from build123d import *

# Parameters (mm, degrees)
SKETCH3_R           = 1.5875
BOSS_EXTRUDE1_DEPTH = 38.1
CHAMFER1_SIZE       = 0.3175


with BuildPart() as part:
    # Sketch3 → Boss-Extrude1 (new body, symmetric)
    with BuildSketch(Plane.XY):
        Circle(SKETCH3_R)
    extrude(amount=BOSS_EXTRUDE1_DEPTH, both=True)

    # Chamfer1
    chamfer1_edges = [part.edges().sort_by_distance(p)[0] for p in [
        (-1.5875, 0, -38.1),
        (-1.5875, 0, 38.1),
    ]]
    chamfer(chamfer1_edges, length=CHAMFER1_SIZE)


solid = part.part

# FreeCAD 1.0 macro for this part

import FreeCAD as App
import Part
import Sketcher
Q = App.Units.Quantity


def edges_at(feature, points):
    """Names of the edges that pass closest to the given points."""
    edges = feature.Shape.Edges
    near = lambda p: min(range(len(edges)), key=lambda i: edges[i].distToShape(Part.Vertex(*p))[0])
    return sorted({f"Edge{near(p) + 1}" for p in points})

doc = App.newDocument("Part")
body = doc.addObject("PartDesign::Body", "Body")

sketch1 = body.newObject("Sketcher::SketchObject", "Sketch")
sketch1.AttachmentSupport = (doc.getObject("XY_Plane"), [""])
sketch1.MapMode = "FlatFace"
sketch1.addGeometry(Part.Circle(App.Vector(0, 0, 0), App.Vector(0, 0, 1), 1.6), False)
sketch1.addConstraint([
    Sketcher.Constraint("Coincident", 0, 3, -1, 1),
    Sketcher.Constraint("Diameter", 0, Q("0.125 in")),
])
pad1 = body.newObject("PartDesign::Pad", "Pad")
pad1.Profile = sketch1
pad1.Length = Q("3 in")
pad1.Midplane = True
doc.recompute()

chamfer = body.newObject("PartDesign::Chamfer", "Chamfer")
chamfer.Base = (pad1, edges_at(pad1, [(-1.587, 0, -38.1), (-1.587, 0, 38.1)]))
chamfer.Size = Q("0.0125 in")

doc.recompute()
